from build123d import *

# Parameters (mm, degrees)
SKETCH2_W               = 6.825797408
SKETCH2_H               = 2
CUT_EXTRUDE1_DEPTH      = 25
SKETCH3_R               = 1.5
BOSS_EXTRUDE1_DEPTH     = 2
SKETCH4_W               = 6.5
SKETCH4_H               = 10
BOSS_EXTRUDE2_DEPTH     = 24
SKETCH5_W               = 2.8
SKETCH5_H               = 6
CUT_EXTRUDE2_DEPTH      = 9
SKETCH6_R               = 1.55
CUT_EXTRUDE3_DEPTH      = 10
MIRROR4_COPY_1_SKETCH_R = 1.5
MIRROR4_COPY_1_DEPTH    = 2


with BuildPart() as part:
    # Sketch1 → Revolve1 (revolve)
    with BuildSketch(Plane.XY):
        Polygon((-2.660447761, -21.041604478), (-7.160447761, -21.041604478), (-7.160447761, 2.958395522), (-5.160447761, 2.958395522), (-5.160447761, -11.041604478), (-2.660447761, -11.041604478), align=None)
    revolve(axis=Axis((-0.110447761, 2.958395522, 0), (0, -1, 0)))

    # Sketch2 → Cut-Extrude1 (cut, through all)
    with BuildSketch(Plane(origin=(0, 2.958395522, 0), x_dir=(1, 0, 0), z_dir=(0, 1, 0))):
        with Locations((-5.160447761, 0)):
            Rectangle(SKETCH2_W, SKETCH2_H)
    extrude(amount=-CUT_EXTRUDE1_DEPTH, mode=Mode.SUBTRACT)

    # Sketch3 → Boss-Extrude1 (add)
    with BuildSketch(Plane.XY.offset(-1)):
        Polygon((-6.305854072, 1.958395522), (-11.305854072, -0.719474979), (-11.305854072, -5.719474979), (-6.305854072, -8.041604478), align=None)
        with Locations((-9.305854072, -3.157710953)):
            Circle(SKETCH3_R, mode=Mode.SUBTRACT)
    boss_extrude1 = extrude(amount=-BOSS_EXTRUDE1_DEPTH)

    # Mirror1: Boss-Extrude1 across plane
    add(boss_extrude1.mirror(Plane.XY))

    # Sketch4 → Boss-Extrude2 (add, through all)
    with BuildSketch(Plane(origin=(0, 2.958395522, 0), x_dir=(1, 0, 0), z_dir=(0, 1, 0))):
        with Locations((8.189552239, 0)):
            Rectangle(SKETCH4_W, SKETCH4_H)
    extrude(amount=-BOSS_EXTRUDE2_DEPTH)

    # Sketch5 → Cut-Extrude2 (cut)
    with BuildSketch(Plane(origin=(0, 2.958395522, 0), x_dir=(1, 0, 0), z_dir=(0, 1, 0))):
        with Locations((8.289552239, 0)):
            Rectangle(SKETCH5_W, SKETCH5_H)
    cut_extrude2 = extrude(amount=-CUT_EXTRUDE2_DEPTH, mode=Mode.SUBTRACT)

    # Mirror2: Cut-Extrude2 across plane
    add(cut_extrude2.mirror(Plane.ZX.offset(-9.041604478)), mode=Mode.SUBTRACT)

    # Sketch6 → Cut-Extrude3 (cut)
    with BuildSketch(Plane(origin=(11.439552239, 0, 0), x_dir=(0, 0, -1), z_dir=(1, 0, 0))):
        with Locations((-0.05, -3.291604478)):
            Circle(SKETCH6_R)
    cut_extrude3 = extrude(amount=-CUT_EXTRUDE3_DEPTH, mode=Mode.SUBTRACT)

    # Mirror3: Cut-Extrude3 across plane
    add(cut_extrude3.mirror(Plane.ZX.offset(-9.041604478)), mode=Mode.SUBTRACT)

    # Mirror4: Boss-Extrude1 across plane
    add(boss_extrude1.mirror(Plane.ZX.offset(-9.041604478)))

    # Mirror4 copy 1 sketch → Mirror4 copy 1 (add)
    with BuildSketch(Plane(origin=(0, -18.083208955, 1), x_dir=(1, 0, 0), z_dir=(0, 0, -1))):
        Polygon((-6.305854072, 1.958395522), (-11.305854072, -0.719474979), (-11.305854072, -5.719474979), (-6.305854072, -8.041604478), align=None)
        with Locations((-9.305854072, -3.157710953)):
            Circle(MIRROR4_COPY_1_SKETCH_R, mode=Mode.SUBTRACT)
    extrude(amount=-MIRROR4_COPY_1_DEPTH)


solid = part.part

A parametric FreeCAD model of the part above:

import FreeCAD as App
import Part
import Sketcher

V = App.Vector

doc = App.newDocument("Part")
body = doc.addObject("PartDesign::Body", "Body")

# Sketch on XY plane
sketch1 = doc.addObject("Sketcher::SketchObject", "Sketch")
body.addObject(sketch1)
sketch1.AttachmentSupport = (doc.XY_Plane, [""])
sketch1.MapMode = "FlatFace"
sketch1.addGeometry([
    Part.LineSegment(V(-7.160448, -21.041604, 0), V(-2.660448, -21.041604, 0)),  # 0
    Part.LineSegment(V(-2.660448, -21.041604, 0), V(-2.660448, -11.041604, 0)),  # 1
    Part.LineSegment(V(-2.660448, -11.041604, 0), V(-5.160448, -11.041604, 0)),  # 2
    Part.LineSegment(V(-5.160448, -11.041604, 0), V(-5.160448, 2.958396, 0)),  # 3
    Part.LineSegment(V(-5.160448, 2.958396, 0), V(-7.160448, 2.958396, 0)),  # 4
    Part.LineSegment(V(-7.160448, 2.958396, 0), V(-7.160448, -21.041604, 0)),  # 5
], False)
sketch1.addGeometry(Part.LineSegment(V(-0.110448, 2.958396, 0), V(-0.110448, -21.041604, 0)), True)  # axis
sketch1.addConstraint([
    Sketcher.Constraint("Coincident", 0, 2, 1, 1),
    Sketcher.Constraint("Coincident", 1, 2, 2, 1),
    Sketcher.Constraint("Coincident", 2, 2, 3, 1),
    Sketcher.Constraint("Coincident", 3, 2, 4, 1),
    Sketcher.Constraint("Coincident", 4, 2, 5, 1),
    Sketcher.Constraint("Coincident", 5, 2, 0, 1),
    Sketcher.Constraint("Horizontal", 0),
    Sketcher.Constraint("Vertical", 1),
    Sketcher.Constraint("Horizontal", 2),
    Sketcher.Constraint("Vertical", 3),
    Sketcher.Constraint("Horizontal", 4),
    Sketcher.Constraint("Vertical", 5),
    Sketcher.Constraint("Vertical", 6),
    Sketcher.Constraint("Horizontal", 4, 2, 6, 1),
    Sketcher.Constraint("Horizontal", 5, 2, 6, 2),
    Sketcher.Constraint("DistanceX", 4, 2, 4, 1, 2.0),
    Sketcher.Constraint("DistanceY", 1, 1, 1, 2, 10.0),
    Sketcher.Constraint("DistanceY", 3, 1, 3, 2, 14.0),
    Sketcher.Constraint("DistanceX", 0, 1, 0, 2, 4.5),
    Sketcher.Constraint("DistanceX", 3, 2, 6, 1, 5.05),
    Sketcher.Constraint("DistanceX", 0, 2, -1, 1, 2.660448),
    Sketcher.Constraint("DistanceY", 0, 2, -1, 1, 21.041604),
])
revolution = doc.addObject("PartDesign::Revolution", "Revolution")
body.addObject(revolution)
revolution.Profile = sketch1
revolution.ReferenceAxis = (sketch1, ["Axis0"])
revolution.Angle = 360

# Sketch on XZ plane
sketch2 = doc.addObject("Sketcher::SketchObject", "Sketch001")
body.addObject(sketch2)
sketch2.AttachmentSupport = (doc.XZ_Plane, [""])
sketch2.MapMode = "FlatFace"
sketch2.AttachmentOffset = App.Placement(V(0, 0, -2.958396), App.Rotation())
sketch2.addGeometry([
    Part.LineSegment(V(-8.573346, -1, 0), V(-8.573346, 1, 0)),
    Part.LineSegment(V(-8.573346, 1, 0), V(-1.747549, 1, 0)),
    Part.LineSegment(V(-1.747549, 1, 0), V(-1.747549, -1, 0)),
    Part.LineSegment(V(-1.747549, -1, 0), V(-8.573346, -1, 0)),
], False)
sketch2.addConstraint([
    Sketcher.Constraint("Coincident", 0, 2, 1, 1),
    Sketcher.Constraint("Coincident", 1, 2, 2, 1),
    Sketcher.Constraint("Coincident", 2, 2, 3, 1),
    Sketcher.Constraint("Coincident", 3, 2, 0, 1),
    Sketcher.Constraint("Vertical", 0),
    Sketcher.Constraint("Horizontal", 1),
    Sketcher.Constraint("Vertical", 2),
    Sketcher.Constraint("Horizontal", 3),
    Sketcher.Constraint("DistanceY", 0, 1, 0, 2, 2.0),
    Sketcher.Constraint("DistanceY", -1, 1, 0, 2, 1.0),
    Sketcher.Constraint("DistanceX", 1, 1, 1, 2, 6.825797),
    Sketcher.Constraint("DistanceX", 1, 2, -1, 1, 1.747549),
])
pocket1 = doc.addObject("PartDesign::Pocket", "Pocket")
body.addObject(pocket1)
pocket1.Profile = sketch2
pocket1.Type = "ThroughAll"
pocket1.Reversed = True

# Sketch on XY plane
sketch3 = doc.addObject("Sketcher::SketchObject", "Sketch002")
body.addObject(sketch3)
sketch3.AttachmentSupport = (doc.XY_Plane, [""])
sketch3.MapMode = "FlatFace"
sketch3.AttachmentOffset = App.Placement(V(0, 0, -1), App.Rotation())
sketch3.addGeometry([
    Part.LineSegment(V(-6.305854, 1.958396, 0), V(-11.305854, -0.719475, 0)),  # 0
    Part.LineSegment(V(-11.305854, -0.719475, 0), V(-11.305854, -5.719475, 0)),  # 1
    Part.LineSegment(V(-11.305854, -5.719475, 0), V(-6.305854, -8.041604, 0)),  # 2
    Part.LineSegment(V(-6.305854, -8.041604, 0), V(-6.305854, 1.958396, 0)),  # 3
    Part.Circle(V(-9.305854, -3.157711, 0), V(0, 0, 1), 1.5),  # 4
], False)
sketch3.addConstraint([
    Sketcher.Constraint("Coincident", 0, 2, 1, 1),
    Sketcher.Constraint("Coincident", 1, 2, 2, 1),
    Sketcher.Constraint("Coincident", 2, 2, 3, 1),
    Sketcher.Constraint("Coincident", 3, 2, 0, 1),
    Sketcher.Constraint("Vertical", 1),
    Sketcher.Constraint("Vertical", 3),
    Sketcher.Constraint("Diameter", 4, 3.0),
    Sketcher.Constraint("DistanceY", 1, 2, 1, 1, 5.0),
    Sketcher.Constraint("DistanceY", 3, 1, 3, 2, 10.0),
    Sketcher.Constraint("DistanceX", 0, 2, 4, 3, 2.0),
    Sketcher.Constraint("DistanceX", 1, 2, 2, 2, 5.0),
    Sketcher.Constraint("Distance", 2, 5.51292),
    Sketcher.Constraint("DistanceY", 4, 3, -1, 1, 3.157711),
    Sketcher.Constraint("DistanceX", 4, 3, -1, 1, 9.305854),
    Sketcher.Constraint("DistanceY", 0, 2, -1, 1, 0.719475),
])
pad1 = doc.addObject("PartDesign::Pad", "Pad")
body.addObject(pad1)
pad1.Profile = sketch3
pad1.Length = 2
pad1.Reversed = True
doc.recompute()

mirrored = doc.addObject("PartDesign::Mirrored", "Mirrored")
body.addObject(mirrored)
mirrored.Originals = [pad1]
mirrored.MirrorPlane = (doc.XY_Plane, [""])
body.Tip = mirrored

# Sketch on XZ plane
sketch4 = doc.addObject("Sketcher::SketchObject", "Sketch003")
body.addObject(sketch4)
sketch4.AttachmentSupport = (doc.XZ_Plane, [""])
sketch4.MapMode = "FlatFace"
sketch4.AttachmentOffset = App.Placement(V(0, 0, -2.958396), App.Rotation())
sketch4.addGeometry([
    Part.LineSegment(V(4.939552, -5, 0), V(4.939552, 5, 0)),
    Part.LineSegment(V(4.939552, 5, 0), V(11.439552, 5, 0)),
    Part.LineSegment(V(11.439552, 5, 0), V(11.439552, -5, 0)),
    Part.LineSegment(V(11.439552, -5, 0), V(4.939552, -5, 0)),
], False)
sketch4.addConstraint([
    Sketcher.Constraint("Coincident", 0, 2, 1, 1),
    Sketcher.Constraint("Coincident", 1, 2, 2, 1),
    Sketcher.Constraint("Coincident", 2, 2, 3, 1),
    Sketcher.Constraint("Coincident", 3, 2, 0, 1),
    Sketcher.Constraint("Vertical", 0),
    Sketcher.Constraint("Horizontal", 1),
    Sketcher.Constraint("Vertical", 2),
    Sketcher.Constraint("Horizontal", 3),
    Sketcher.Constraint("DistanceY", 0, 1, 0, 2, 10.0),
    Sketcher.Constraint("DistanceX", 1, 1, 1, 2, 6.5),
    Sketcher.Constraint("DistanceY", -1, 1, 0, 2, 5.0),
    Sketcher.Constraint("DistanceX", -1, 1, 0, 2, 4.939552),
])
pad2 = doc.addObject("PartDesign::Pad", "Pad001")
body.addObject(pad2)
pad2.Profile = sketch4
pad2.Length = 24

# Sketch on XZ plane
sketch5 = doc.addObject("Sketcher::SketchObject", "Sketch004")
body.addObject(sketch5)
sketch5.AttachmentSupport = (doc.XZ_Plane, [""])
sketch5.MapMode = "FlatFace"
sketch5.AttachmentOffset = App.Placement(V(0, 0, -2.958396), App.Rotation())
sketch5.addGeometry([
    Part.LineSegment(V(6.889552, -3, 0), V(6.889552, 3, 0)),
    Part.LineSegment(V(6.889552, 3, 0), V(9.689552, 3, 0)),
    Part.LineSegment(V(9.689552, 3, 0), V(9.689552, -3, 0)),
    Part.LineSegment(V(9.689552, -3, 0), V(6.889552, -3, 0)),
], False)
sketch5.addConstraint([
    Sketcher.Constraint("Coincident", 0, 2, 1, 1),
    Sketcher.Constraint("Coincident", 1, 2, 2, 1),
    Sketcher.Constraint("Coincident", 2, 2, 3, 1),
    Sketcher.Constraint("Coincident", 3, 2, 0, 1),
    Sketcher.Constraint("Vertical", 0),
    Sketcher.Constraint("Horizontal", 1),
    Sketcher.Constraint("Vertical", 2),
    Sketcher.Constraint("Horizontal", 3),
    Sketcher.Constraint("DistanceY", 0, 1, 0, 2, 6.0),
    Sketcher.Constraint("DistanceX", 1, 1, 1, 2, 2.8),
    Sketcher.Constraint("DistanceY", -1, 1, 0, 2, 3.0),
    Sketcher.Constraint("DistanceX", -1, 1, 0, 2, 6.889552),
])
pocket2 = doc.addObject("PartDesign::Pocket", "Pocket001")
body.addObject(pocket2)
pocket2.Profile = sketch5
pocket2.Length = 9
pocket2.Reversed = True
doc.recompute()

datumplane = doc.addObject("PartDesign::Plane", "DatumPlane")
body.addObject(datumplane)
datumplane.AttachmentSupport = (doc.XZ_Plane, [""])
datumplane.MapMode = "FlatFace"
datumplane.AttachmentOffset = App.Placement(V(0, 0, 9.041604), App.Rotation())
mirrored2 = doc.addObject("PartDesign::Mirrored", "Mirrored001")
body.addObject(mirrored2)
mirrored2.Originals = [pocket2]
mirrored2.MirrorPlane = (datumplane, [""])
body.Tip = mirrored2

# Sketch on YZ plane
sketch6 = doc.addObject("Sketcher::SketchObject", "Sketch005")
body.addObject(sketch6)
sketch6.AttachmentSupport = (doc.YZ_Plane, [""])
sketch6.MapMode = "FlatFace"
sketch6.AttachmentOffset = App.Placement(V(0, 0, 11.439552), App.Rotation())
sketch6.addGeometry(Part.Circle(V(-3.291604, 0.05, 0), V(0, 0, 1), 1.55), False)
sketch6.addConstraint([
    Sketcher.Constraint("Diameter", 0, 3.1),
    Sketcher.Constraint("DistanceY", -1, 1, 0, 3, 0.05),
    Sketcher.Constraint("DistanceX", 0, 3, -1, 1, 3.291604),
])
pocket3 = doc.addObject("PartDesign::Pocket", "Pocket002")
body.addObject(pocket3)
pocket3.Profile = sketch6
pocket3.Length = 10
doc.recompute()

datumplane2 = doc.addObject("PartDesign::Plane", "DatumPlane001")
body.addObject(datumplane2)
datumplane2.AttachmentSupport = (doc.XZ_Plane, [""])
datumplane2.MapMode = "FlatFace"
datumplane2.AttachmentOffset = App.Placement(V(0, 0, 9.041604), App.Rotation())
mirrored3 = doc.addObject("PartDesign::Mirrored", "Mirrored002")
body.addObject(mirrored3)
mirrored3.Originals = [pocket3]
mirrored3.MirrorPlane = (datumplane2, [""])
body.Tip = mirrored3
doc.recompute()

datumplane3 = doc.addObject("PartDesign::Plane", "DatumPlane002")
body.addObject(datumplane3)
datumplane3.AttachmentSupport = (doc.XZ_Plane, [""])
datumplane3.MapMode = "FlatFace"
datumplane3.AttachmentOffset = App.Placement(V(0, 0, 9.041604), App.Rotation())
mirrored4 = doc.addObject("PartDesign::Mirrored", "Mirrored003")
body.addObject(mirrored4)
mirrored4.Originals = [pad1]
mirrored4.MirrorPlane = (datumplane3, [""])
body.Tip = mirrored4

# Sketch on XY plane
sketch7 = doc.addObject("Sketcher::SketchObject", "Sketch006")
body.addObject(sketch7)
sketch7.AttachmentSupport = (doc.XY_Plane, [""])
sketch7.MapMode = "FlatFace"
sketch7.AttachmentOffset = App.Placement(V(0, 0, 1), App.Rotation())
sketch7.addGeometry([
    Part.LineSegment(V(-6.305854, -20.041604, 0), V(-11.305854, -17.363734, 0)),  # 0
    Part.LineSegment(V(-11.305854, -17.363734, 0), V(-11.305854, -12.363734, 0)),  # 1
    Part.LineSegment(V(-11.305854, -12.363734, 0), V(-6.305854, -10.041604, 0)),  # 2
    Part.LineSegment(V(-6.305854, -10.041604, 0), V(-6.305854, -20.041604, 0)),  # 3
    Part.Circle(V(-9.305854, -14.925498, 0), V(0, 0, 1), 1.5),  # 4
], False)
sketch7.addConstraint([
    Sketcher.Constraint("Coincident", 0, 2, 1, 1),
    Sketcher.Constraint("Coincident", 1, 2, 2, 1),
    Sketcher.Constraint("Coincident", 2, 2, 3, 1),
    Sketcher.Constraint("Coincident", 3, 2, 0, 1),
    Sketcher.Constraint("Vertical", 1),
    Sketcher.Constraint("Vertical", 3),
    Sketcher.Constraint("Diameter", 4, 3.0),
    Sketcher.Constraint("DistanceY", 1, 1, 1, 2, 5.0),
    Sketcher.Constraint("DistanceY", 3, 2, 3, 1, 10.0),
    Sketcher.Constraint("DistanceX", 0, 2, 4, 3, 2.0),
    Sketcher.Constraint("DistanceX", 1, 2, 2, 2, 5.0),
    Sketcher.Constraint("DistanceY", 4, 3, -1, 1, 14.925498),
    Sketcher.Constraint("Distance", 2, 5.51292),
    Sketcher.Constraint("DistanceX", 4, 3, -1, 1, 9.305854),
    Sketcher.Constraint("DistanceY", 0, 2, -1, 1, 17.363734),
])
pad3 = doc.addObject("PartDesign::Pad", "Pad002")
body.addObject(pad3)
pad3.Profile = sketch7
pad3.Length = 2

doc.recompute()
